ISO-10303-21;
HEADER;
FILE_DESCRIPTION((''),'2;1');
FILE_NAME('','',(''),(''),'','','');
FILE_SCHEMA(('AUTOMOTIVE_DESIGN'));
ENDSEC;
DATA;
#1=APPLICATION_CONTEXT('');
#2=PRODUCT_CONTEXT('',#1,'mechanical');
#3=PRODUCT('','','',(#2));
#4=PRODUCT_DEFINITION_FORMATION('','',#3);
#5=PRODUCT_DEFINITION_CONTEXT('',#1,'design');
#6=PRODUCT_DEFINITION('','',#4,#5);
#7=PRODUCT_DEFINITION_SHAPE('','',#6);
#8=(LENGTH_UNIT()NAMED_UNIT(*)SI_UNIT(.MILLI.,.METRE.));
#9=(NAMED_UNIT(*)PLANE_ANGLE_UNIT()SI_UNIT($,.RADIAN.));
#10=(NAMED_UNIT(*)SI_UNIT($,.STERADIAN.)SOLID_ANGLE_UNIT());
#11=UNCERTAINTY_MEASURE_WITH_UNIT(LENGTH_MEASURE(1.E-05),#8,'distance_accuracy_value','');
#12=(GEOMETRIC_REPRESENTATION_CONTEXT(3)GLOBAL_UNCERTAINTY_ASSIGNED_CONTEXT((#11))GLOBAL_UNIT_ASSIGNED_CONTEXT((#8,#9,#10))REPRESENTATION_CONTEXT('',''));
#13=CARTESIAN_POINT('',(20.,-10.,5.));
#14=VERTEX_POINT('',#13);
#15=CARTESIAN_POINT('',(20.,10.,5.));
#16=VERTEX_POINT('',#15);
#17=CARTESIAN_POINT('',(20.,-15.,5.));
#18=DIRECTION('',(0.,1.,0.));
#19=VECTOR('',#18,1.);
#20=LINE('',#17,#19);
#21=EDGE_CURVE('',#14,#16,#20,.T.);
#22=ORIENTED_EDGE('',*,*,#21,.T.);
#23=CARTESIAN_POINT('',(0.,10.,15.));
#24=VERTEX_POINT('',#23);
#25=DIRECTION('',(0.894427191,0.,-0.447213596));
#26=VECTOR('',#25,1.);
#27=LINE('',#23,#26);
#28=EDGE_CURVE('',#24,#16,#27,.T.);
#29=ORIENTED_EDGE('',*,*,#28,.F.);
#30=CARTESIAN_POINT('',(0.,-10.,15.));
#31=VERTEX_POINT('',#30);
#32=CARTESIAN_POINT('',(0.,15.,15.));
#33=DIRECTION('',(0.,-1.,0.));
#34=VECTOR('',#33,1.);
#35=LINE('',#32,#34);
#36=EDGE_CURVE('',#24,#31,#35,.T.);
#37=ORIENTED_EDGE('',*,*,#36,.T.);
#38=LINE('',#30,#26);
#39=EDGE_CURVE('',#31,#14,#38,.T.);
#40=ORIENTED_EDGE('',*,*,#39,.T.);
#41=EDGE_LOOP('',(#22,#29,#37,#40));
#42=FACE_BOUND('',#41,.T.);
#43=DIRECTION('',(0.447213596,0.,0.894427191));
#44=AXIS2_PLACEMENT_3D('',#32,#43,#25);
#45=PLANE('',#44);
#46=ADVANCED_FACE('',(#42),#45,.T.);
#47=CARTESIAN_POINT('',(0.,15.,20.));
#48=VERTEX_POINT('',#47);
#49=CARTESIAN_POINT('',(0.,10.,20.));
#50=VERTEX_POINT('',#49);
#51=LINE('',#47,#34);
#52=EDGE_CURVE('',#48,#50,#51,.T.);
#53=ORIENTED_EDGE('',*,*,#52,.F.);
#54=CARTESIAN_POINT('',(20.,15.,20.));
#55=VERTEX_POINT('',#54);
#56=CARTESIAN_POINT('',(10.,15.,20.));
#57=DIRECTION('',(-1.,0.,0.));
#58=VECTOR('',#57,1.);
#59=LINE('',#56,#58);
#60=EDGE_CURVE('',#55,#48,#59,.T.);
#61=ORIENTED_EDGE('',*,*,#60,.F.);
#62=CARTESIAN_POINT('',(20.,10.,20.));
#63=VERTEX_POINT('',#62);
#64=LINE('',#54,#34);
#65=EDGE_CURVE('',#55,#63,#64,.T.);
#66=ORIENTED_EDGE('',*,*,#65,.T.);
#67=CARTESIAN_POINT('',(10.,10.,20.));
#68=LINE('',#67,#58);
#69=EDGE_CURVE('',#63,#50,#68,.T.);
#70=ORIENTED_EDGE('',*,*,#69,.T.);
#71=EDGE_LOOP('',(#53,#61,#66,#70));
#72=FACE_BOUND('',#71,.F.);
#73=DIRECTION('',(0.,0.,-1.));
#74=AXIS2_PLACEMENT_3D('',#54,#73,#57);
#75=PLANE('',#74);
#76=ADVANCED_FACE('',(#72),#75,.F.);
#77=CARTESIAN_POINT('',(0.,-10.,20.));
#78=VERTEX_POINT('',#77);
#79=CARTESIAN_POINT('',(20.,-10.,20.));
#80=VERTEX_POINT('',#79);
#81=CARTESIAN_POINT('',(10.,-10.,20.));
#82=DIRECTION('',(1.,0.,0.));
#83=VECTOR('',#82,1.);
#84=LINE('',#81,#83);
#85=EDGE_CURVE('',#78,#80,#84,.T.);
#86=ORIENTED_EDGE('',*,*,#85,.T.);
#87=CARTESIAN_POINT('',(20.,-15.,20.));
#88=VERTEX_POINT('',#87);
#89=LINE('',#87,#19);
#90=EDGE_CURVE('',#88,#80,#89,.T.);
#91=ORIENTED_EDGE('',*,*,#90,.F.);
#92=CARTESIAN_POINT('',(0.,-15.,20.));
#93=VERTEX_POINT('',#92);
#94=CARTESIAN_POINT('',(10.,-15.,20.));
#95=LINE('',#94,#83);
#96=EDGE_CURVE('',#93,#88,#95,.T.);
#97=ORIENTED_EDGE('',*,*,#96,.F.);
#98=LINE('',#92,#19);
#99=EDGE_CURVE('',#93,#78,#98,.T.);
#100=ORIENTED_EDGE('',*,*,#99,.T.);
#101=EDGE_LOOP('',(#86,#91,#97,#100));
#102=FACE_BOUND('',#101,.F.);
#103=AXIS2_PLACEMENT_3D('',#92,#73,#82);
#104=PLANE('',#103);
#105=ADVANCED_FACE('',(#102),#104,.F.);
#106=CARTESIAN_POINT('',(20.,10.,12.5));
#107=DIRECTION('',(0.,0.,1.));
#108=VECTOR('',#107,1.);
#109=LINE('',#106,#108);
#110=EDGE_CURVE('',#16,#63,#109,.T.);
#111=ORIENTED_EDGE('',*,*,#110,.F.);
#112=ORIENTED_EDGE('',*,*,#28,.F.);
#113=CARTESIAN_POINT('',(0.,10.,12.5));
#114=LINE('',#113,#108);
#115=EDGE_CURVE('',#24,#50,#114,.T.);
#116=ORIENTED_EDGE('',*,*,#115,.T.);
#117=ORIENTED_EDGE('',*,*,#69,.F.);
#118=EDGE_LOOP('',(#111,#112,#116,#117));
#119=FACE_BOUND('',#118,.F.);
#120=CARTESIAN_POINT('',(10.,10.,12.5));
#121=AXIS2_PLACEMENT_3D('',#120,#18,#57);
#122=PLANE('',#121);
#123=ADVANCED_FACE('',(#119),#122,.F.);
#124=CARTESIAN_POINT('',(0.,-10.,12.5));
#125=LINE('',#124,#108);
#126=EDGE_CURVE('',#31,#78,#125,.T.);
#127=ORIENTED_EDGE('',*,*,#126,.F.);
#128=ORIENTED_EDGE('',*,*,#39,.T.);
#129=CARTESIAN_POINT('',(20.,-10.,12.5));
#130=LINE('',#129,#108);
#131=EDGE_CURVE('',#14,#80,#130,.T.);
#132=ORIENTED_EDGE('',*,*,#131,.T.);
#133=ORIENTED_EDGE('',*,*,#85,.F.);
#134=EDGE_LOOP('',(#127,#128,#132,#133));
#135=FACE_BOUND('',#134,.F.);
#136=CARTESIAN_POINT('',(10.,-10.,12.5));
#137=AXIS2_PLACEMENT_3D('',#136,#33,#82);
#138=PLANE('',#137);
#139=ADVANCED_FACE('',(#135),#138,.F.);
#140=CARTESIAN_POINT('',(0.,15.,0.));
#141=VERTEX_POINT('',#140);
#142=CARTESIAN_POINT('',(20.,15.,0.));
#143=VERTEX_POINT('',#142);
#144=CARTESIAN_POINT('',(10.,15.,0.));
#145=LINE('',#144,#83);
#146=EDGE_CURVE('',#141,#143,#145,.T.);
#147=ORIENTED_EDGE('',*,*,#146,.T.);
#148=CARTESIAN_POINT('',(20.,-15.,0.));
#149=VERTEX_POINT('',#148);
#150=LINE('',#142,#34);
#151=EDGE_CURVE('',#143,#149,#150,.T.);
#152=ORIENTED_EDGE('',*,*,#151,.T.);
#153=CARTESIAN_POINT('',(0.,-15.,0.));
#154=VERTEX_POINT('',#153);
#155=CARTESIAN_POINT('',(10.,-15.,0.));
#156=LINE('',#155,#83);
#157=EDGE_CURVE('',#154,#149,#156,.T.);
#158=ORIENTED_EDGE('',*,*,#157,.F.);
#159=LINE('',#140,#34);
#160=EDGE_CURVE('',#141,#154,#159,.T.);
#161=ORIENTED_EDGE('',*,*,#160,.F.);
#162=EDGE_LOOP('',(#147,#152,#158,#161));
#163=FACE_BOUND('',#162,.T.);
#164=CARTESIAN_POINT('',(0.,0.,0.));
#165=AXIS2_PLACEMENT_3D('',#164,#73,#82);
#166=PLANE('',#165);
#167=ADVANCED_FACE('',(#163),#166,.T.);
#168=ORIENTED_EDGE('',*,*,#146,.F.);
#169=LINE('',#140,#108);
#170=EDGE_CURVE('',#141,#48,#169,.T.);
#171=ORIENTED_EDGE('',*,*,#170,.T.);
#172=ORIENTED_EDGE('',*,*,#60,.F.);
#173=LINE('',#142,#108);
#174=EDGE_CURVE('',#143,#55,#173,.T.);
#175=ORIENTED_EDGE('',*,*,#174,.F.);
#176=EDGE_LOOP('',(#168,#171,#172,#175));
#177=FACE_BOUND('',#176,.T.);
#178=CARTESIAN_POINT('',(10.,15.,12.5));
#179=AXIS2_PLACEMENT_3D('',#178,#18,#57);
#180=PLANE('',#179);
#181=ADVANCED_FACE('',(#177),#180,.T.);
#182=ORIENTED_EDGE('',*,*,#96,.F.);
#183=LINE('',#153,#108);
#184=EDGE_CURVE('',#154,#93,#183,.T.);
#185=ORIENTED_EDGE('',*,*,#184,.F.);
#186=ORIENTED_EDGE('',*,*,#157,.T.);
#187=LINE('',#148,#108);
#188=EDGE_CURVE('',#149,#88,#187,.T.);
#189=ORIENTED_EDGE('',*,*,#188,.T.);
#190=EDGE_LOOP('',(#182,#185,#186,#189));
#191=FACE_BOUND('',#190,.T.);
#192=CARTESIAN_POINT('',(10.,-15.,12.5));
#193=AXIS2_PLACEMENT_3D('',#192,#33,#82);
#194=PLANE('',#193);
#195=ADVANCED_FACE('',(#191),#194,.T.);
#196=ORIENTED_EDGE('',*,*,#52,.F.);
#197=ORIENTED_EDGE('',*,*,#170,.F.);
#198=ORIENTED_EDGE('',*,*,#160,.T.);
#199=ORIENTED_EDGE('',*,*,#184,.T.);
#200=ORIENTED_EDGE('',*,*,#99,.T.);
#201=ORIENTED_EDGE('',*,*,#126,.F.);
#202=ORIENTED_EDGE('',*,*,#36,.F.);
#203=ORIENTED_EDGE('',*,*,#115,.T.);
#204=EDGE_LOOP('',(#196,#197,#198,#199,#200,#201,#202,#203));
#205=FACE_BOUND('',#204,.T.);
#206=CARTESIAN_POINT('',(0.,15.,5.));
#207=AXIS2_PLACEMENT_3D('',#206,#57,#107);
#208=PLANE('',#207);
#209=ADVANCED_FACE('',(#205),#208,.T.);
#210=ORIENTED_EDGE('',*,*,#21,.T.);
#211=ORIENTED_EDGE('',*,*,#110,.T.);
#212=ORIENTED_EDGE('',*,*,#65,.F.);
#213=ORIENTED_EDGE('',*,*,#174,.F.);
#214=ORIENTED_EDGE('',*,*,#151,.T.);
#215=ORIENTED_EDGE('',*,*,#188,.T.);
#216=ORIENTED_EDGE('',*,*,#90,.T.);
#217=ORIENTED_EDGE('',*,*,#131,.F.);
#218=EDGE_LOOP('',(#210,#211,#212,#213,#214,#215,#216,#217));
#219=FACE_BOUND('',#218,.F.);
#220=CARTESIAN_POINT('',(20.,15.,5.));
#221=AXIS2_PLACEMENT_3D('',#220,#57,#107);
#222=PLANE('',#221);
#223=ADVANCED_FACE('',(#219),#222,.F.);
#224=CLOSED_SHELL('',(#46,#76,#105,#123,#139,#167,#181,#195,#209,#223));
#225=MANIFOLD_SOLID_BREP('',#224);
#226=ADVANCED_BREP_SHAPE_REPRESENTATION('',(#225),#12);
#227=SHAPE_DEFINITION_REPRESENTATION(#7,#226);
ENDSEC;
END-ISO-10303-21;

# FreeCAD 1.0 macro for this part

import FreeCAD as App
import Part
import Sketcher

V = App.Vector
Q = App.Units.Quantity


def add_polygon(sketch, points):
    """Adds a closed chain of lines whose ends are joined by coincident constraints."""
    first, n = sketch.GeometryCount, len(points)
    for a, b in zip(points, points[1:] + points[:1]):
        sketch.addGeometry(Part.LineSegment(App.Vector(*a, 0), App.Vector(*b, 0)), False)
    for i in range(n):
        sketch.addConstraint(Sketcher.Constraint("Coincident", first + i, 2, first + (i + 1) % n, 1))

doc = App.newDocument("Part")
body = doc.addObject("PartDesign::Body", "Body")

sketch1 = body.newObject("Sketcher::SketchObject", "Sketch")
sketch1.AttachmentSupport = (doc.getObject("XZ_Plane"), [""])
sketch1.MapMode = "FlatFace"
add_polygon(sketch1, [(0, 5), (0, 0), (20, 0), (20, 5)])
sketch1.addConstraint(Sketcher.Constraint("Vertical", 0))
sketch1.addConstraint(Sketcher.Constraint("Horizontal", 1))
sketch1.addConstraint(Sketcher.Constraint("Vertical", 2))
sketch1.addConstraint(Sketcher.Constraint("Horizontal", 3))
sketch1.addConstraint(Sketcher.Constraint("Coincident", 0, 2, -1, 1))
sketch1.addConstraint(Sketcher.Constraint("DistanceX", 1, 1, 1, 2, Q("20 mm")))
sketch1.addConstraint(Sketcher.Constraint("DistanceY", 0, 2, 0, 1, Q("5 mm")))
pad1 = body.newObject("PartDesign::Pad", "Pad")
pad1.Profile = sketch1
pad1.Length = 30
pad1.Midplane = True

sketch2 = body.newObject("Sketcher::SketchObject", "Sketch001")
sketch2.AttachmentSupport = (doc.getObject("XZ_Plane"), [""])
sketch2.MapMode = "FlatFace"
sketch2.AttachmentOffset = App.Placement(V(0, 0, 15), App.Rotation())
add_polygon(sketch2, [(0, 20), (0, 5), (20, 5), (20, 20)])
sketch2.addConstraint(Sketcher.Constraint("Vertical", 0))
sketch2.addConstraint(Sketcher.Constraint("Horizontal", 1))
sketch2.addConstraint(Sketcher.Constraint("Vertical", 2))
sketch2.addConstraint(Sketcher.Constraint("Horizontal", 3))
sketch2.addConstraint(Sketcher.Constraint("PointOnObject", 0, 2, -2))
sketch2.addConstraint(Sketcher.Constraint("DistanceX", 1, 1, 1, 2, Q("20 mm")))
sketch2.addConstraint(Sketcher.Constraint("DistanceY", 0, 2, 0, 1, Q("15 mm")))
sketch2.addConstraint(Sketcher.Constraint("DistanceY", -1, 1, 0, 2, Q("5 mm")))
pad2 = body.newObject("PartDesign::Pad", "Pad001")
pad2.Profile = sketch2
pad2.Length = 5
pad2.Reversed = True

sketch3 = body.newObject("Sketcher::SketchObject", "Sketch002")
sketch3.AttachmentSupport = (doc.getObject("XZ_Plane"), [""])
sketch3.MapMode = "FlatFace"
sketch3.AttachmentOffset = App.Placement(V(0, 0, -15), App.Rotation())
add_polygon(sketch3, [(0, 15), (20, 5), (0, 5)])
sketch3.addConstraint(Sketcher.Constraint("Horizontal", 1))
sketch3.addConstraint(Sketcher.Constraint("Vertical", 2))
sketch3.addConstraint(Sketcher.Constraint("PointOnObject", 1, 2, -2))
sketch3.addConstraint(Sketcher.Constraint("DistanceX", 1, 2, 1, 1, Q("20 mm")))
sketch3.addConstraint(Sketcher.Constraint("DistanceY", 2, 1, 2, 2, Q("10 mm")))
sketch3.addConstraint(Sketcher.Constraint("DistanceY", -1, 1, 0, 2, Q("5 mm")))
pad3 = body.newObject("PartDesign::Pad", "Pad002")
pad3.Profile = sketch3
pad3.Length = 25

sketch4 = body.newObject("Sketcher::SketchObject", "Sketch003")
sketch4.AttachmentSupport = (doc.getObject("XZ_Plane"), [""])
sketch4.MapMode = "FlatFace"
sketch4.AttachmentOffset = App.Placement(V(0, 0, -15), App.Rotation())
add_polygon(sketch4, [(0, 15), (20, 5), (0, 5)])
sketch4.addConstraint(Sketcher.Constraint("Horizontal", 1))
sketch4.addConstraint(Sketcher.Constraint("Vertical", 2))
sketch4.addConstraint(Sketcher.Constraint("PointOnObject", 1, 2, -2))
sketch4.addConstraint(Sketcher.Constraint("DistanceX", 1, 2, 1, 1, Q("20 mm")))
sketch4.addConstraint(Sketcher.Constraint("DistanceY", 2, 1, 2, 2, Q("10 mm")))
sketch4.addConstraint(Sketcher.Constraint("DistanceY", -1, 1, 0, 2, Q("5 mm")))
pocket1 = body.newObject("PartDesign::Pocket", "Pocket")
pocket1.Profile = sketch4
pocket1.Length = 5
pocket1.Reversed = True

sketch5 = body.newObject("Sketcher::SketchObject", "Sketch004")
sketch5.AttachmentSupport = (doc.getObject("XZ_Plane"), [""])
sketch5.MapMode = "FlatFace"
sketch5.AttachmentOffset = App.Placement(V(0, 0, -15), App.Rotation())
add_polygon(sketch5, [(20, 20), (20, 5), (0, 5), (0, 20)])
sketch5.addConstraint(Sketcher.Constraint("Vertical", 0))
sketch5.addConstraint(Sketcher.Constraint("Horizontal", 1))
sketch5.addConstraint(Sketcher.Constraint("Vertical", 2))
sketch5.addConstraint(Sketcher.Constraint("Horizontal", 3))
sketch5.addConstraint(Sketcher.Constraint("PointOnObject", 1, 2, -2))
sketch5.addConstraint(Sketcher.Constraint("DistanceX", 1, 2, 1, 1, Q("20 mm")))
sketch5.addConstraint(Sketcher.Constraint("DistanceY", 0, 2, 0, 1, Q("15 mm")))
sketch5.addConstraint(Sketcher.Constraint("DistanceY", -1, 1, 0, 2, Q("5 mm")))
pad4 = body.newObject("PartDesign::Pad", "Pad003")
pad4.Profile = sketch5
pad4.Length = 5

doc.recompute()
